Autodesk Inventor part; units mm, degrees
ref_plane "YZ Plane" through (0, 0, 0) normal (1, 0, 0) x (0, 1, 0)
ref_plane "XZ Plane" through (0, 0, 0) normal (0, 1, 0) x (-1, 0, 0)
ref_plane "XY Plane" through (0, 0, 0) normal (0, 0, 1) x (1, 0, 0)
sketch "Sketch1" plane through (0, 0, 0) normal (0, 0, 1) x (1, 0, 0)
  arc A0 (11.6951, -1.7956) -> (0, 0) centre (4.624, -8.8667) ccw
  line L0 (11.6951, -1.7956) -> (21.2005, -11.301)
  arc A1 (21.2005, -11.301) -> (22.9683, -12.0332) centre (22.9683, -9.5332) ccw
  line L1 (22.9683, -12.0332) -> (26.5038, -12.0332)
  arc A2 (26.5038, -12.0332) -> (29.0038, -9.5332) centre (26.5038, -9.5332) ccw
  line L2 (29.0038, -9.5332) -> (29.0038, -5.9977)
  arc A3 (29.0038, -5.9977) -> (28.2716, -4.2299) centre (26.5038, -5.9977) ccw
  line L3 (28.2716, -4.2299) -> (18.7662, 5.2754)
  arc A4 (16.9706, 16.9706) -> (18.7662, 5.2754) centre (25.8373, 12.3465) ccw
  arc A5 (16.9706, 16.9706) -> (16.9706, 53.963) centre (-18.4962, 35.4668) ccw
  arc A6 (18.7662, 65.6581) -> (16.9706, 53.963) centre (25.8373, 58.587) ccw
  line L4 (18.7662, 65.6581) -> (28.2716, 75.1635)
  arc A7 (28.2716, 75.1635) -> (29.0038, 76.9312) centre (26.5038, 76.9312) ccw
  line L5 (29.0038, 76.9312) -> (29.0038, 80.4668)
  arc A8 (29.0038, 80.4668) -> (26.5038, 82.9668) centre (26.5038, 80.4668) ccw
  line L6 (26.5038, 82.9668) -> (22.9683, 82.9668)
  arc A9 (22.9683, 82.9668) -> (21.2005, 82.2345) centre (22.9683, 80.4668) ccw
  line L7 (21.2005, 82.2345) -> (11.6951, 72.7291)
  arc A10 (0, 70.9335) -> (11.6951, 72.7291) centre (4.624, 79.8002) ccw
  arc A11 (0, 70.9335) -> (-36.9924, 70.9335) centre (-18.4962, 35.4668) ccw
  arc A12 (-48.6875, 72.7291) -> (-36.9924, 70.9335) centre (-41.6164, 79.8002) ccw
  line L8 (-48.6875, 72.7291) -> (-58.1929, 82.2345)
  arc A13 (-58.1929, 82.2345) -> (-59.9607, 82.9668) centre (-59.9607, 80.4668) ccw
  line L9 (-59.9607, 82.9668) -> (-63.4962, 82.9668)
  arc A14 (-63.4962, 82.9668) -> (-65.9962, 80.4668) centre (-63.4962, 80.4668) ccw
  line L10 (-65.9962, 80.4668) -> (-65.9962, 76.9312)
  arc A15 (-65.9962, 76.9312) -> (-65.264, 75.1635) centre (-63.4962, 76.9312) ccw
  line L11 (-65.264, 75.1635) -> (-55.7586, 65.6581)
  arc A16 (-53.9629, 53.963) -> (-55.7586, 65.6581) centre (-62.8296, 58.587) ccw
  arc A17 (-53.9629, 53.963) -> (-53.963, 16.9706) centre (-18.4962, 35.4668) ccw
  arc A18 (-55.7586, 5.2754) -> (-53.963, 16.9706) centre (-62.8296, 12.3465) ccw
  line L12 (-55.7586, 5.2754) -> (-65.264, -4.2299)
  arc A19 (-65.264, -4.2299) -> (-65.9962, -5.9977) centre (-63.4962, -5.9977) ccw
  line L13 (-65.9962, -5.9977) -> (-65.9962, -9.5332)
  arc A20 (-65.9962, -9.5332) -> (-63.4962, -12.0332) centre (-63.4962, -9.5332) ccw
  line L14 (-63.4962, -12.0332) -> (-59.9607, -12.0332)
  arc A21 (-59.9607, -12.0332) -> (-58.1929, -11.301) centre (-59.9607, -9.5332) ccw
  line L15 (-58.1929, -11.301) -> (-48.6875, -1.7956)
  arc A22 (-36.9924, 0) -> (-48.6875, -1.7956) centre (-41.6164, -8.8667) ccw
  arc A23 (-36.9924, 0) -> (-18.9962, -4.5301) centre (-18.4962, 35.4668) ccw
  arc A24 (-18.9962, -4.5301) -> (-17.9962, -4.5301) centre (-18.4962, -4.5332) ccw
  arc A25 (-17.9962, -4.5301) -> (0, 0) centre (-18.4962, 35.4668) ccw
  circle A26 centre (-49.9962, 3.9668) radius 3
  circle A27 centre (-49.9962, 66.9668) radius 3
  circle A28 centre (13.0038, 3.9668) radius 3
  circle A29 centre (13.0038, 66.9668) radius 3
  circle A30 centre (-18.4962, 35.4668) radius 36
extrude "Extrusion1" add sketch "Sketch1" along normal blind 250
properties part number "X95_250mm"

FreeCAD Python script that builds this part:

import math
import FreeCAD as App
import Part
import Sketcher

doc = App.newDocument("Part")
params = doc.addObject("Spreadsheet::Sheet", "Params")
for row, (alias, value) in enumerate([
    ("sketch1_diameter", "6 mm"),
    ("sketch1_diameter2", "72 mm"),
    ("sketch1_radius", "10 mm"),
    ("sketch1_radius2", "40 mm"),
    ("sketch1_radius3", "2.5 mm"),
    ("pad1_length", "250 mm"),
], start=1):
    params.set(f"A{row}", alias)
    params.set(f"B{row}", "=" + value)
    params.setAlias(f"B{row}", alias)

body = doc.addObject("PartDesign::Body", "Body")

# Sketch on XY plane
sketch1 = body.newObject("Sketcher::SketchObject", "Sketch")
sketch1.AttachmentSupport = (doc.getObject("XY_Plane"), [""])
sketch1.MapMode = "FlatFace"
sketch1.addGeometry([
    Part.ArcOfCircle(Part.Circle(App.Vector(4.6, -8.9, 0), App.Vector(0, 0, 1), 10), math.radians(45), math.radians(118)),  # 0
    Part.LineSegment(App.Vector(11.7, -1.8, 0), App.Vector(21.2, -11.3, 0)),  # 1
    Part.ArcOfCircle(Part.Circle(App.Vector(23, -9.5, 0), App.Vector(0, 0, 1), 2.5), math.radians(-135), math.radians(-90)),  # 2
    Part.LineSegment(App.Vector(23, -12, 0), App.Vector(26.5, -12, 0)),  # 3
    Part.ArcOfCircle(Part.Circle(App.Vector(26.5, -9.5, 0), App.Vector(0, 0, 1), 2.5), math.radians(-90), math.radians(0)),  # 4
    Part.LineSegment(App.Vector(29, -9.5, 0), App.Vector(29, -6, 0)),  # 5
    Part.ArcOfCircle(Part.Circle(App.Vector(26.5, -6, 0), App.Vector(0, 0, 1), 2.5), math.radians(0), math.radians(45)),  # 6
    Part.LineSegment(App.Vector(28.3, -4.2, 0), App.Vector(18.8, 5.3, 0)),  # 7
    Part.ArcOfCircle(Part.Circle(App.Vector(25.8, 12.3, 0), App.Vector(0, 0, 1), 10), math.radians(152), math.radians(225)),  # 8
    Part.ArcOfCircle(Part.Circle(App.Vector(-18.5, 35.5, 0), App.Vector(0, 0, 1), 40), math.radians(-28), math.radians(28)),  # 9
    Part.ArcOfCircle(Part.Circle(App.Vector(25.8, 58.6, 0), App.Vector(0, 0, 1), 10), math.radians(135), math.radians(208)),  # 10
    Part.LineSegment(App.Vector(18.8, 65.7, 0), App.Vector(28.3, 75.2, 0)),  # 11
    Part.ArcOfCircle(Part.Circle(App.Vector(26.5, 76.9, 0), App.Vector(0, 0, 1), 2.5), math.radians(-45), math.radians(0)),  # 12
    Part.LineSegment(App.Vector(29, 76.9, 0), App.Vector(29, 80.5, 0)),  # 13
    Part.ArcOfCircle(Part.Circle(App.Vector(26.5, 80.5, 0), App.Vector(0, 0, 1), 2.5), math.radians(0), math.radians(90)),  # 14
    Part.LineSegment(App.Vector(26.5, 83, 0), App.Vector(23, 83, 0)),  # 15
    Part.ArcOfCircle(Part.Circle(App.Vector(23, 80.5, 0), App.Vector(0, 0, 1), 2.5), math.radians(90), math.radians(135)),  # 16
    Part.LineSegment(App.Vector(21.2, 82.2, 0), App.Vector(11.7, 72.7, 0)),  # 17
    Part.ArcOfCircle(Part.Circle(App.Vector(4.6, 79.8, 0), App.Vector(0, 0, 1), 10), math.radians(-118), math.radians(-45)),  # 18
    Part.ArcOfCircle(Part.Circle(App.Vector(-18.5, 35.5, 0), App.Vector(0, 0, 1), 40), math.radians(62), math.radians(118)),  # 19
    Part.ArcOfCircle(Part.Circle(App.Vector(-41.6, 79.8, 0), App.Vector(0, 0, 1), 10), math.radians(-135), math.radians(-62)),  # 20
    Part.LineSegment(App.Vector(-48.7, 72.7, 0), App.Vector(-58.2, 82.2, 0)),  # 21
    Part.ArcOfCircle(Part.Circle(App.Vector(-60, 80.5, 0), App.Vector(0, 0, 1), 2.5), math.radians(45), math.radians(90)),  # 22
    Part.LineSegment(App.Vector(-60, 83, 0), App.Vector(-63.5, 83, 0)),  # 23
    Part.ArcOfCircle(Part.Circle(App.Vector(-63.5, 80.5, 0), App.Vector(0, 0, 1), 2.5), math.radians(90), math.radians(180)),  # 24
    Part.LineSegment(App.Vector(-66, 80.5, 0), App.Vector(-66, 76.9, 0)),  # 25
    Part.ArcOfCircle(Part.Circle(App.Vector(-63.5, 76.9, 0), App.Vector(0, 0, 1), 2.5), math.radians(180), math.radians(225)),  # 26
    Part.LineSegment(App.Vector(-65.3, 75.2, 0), App.Vector(-55.8, 65.7, 0)),  # 27
    Part.ArcOfCircle(Part.Circle(App.Vector(-62.8, 58.6, 0), App.Vector(0, 0, 1), 10), math.radians(-28), math.radians(45)),  # 28
    Part.ArcOfCircle(Part.Circle(App.Vector(-18.5, 35.5, 0), App.Vector(0, 0, 1), 40), math.radians(152), math.radians(208)),  # 29
    Part.ArcOfCircle(Part.Circle(App.Vector(-62.8, 12.3, 0), App.Vector(0, 0, 1), 10), math.radians(-45), math.radians(28)),  # 30
    Part.LineSegment(App.Vector(-55.8, 5.3, 0), App.Vector(-65.3, -4.2, 0)),  # 31
    Part.ArcOfCircle(Part.Circle(App.Vector(-63.5, -6, 0), App.Vector(0, 0, 1), 2.5), math.radians(135), math.radians(180)),  # 32
    Part.LineSegment(App.Vector(-66, -6, 0), App.Vector(-66, -9.5, 0)),  # 33
    Part.ArcOfCircle(Part.Circle(App.Vector(-63.5, -9.5, 0), App.Vector(0, 0, 1), 2.5), math.radians(180), math.radians(270)),  # 34
    Part.LineSegment(App.Vector(-63.5, -12, 0), App.Vector(-60, -12, 0)),  # 35
    Part.ArcOfCircle(Part.Circle(App.Vector(-60, -9.5, 0), App.Vector(0, 0, 1), 2.5), math.radians(-90), math.radians(-45)),  # 36
    Part.LineSegment(App.Vector(-58.2, -11.3, 0), App.Vector(-48.7, -1.8, 0)),  # 37
    Part.ArcOfCircle(Part.Circle(App.Vector(-41.6, -8.9, 0), App.Vector(0, 0, 1), 10), math.radians(62), math.radians(135)),  # 38
    Part.ArcOfCircle(Part.Circle(App.Vector(-18.5, 35.5, 0), App.Vector(0, 0, 1), 40), math.radians(-118), math.radians(-91)),  # 39
    Part.ArcOfCircle(Part.Circle(App.Vector(-18.5, -4.5, 0), App.Vector(0, 0, 1), 0.5), math.radians(180), math.radians(360)),  # 40
    Part.ArcOfCircle(Part.Circle(App.Vector(-18.5, 35.5, 0), App.Vector(0, 0, 1), 40), math.radians(-89), math.radians(-62)),  # 41
    Part.Circle(App.Vector(-50, 4, 0), App.Vector(0, 0, 1), 3),  # 42
    Part.Circle(App.Vector(13, 4, 0), App.Vector(0, 0, 1), 3),  # 43
    Part.Circle(App.Vector(-50, 67, 0), App.Vector(0, 0, 1), 3),  # 44
    Part.Circle(App.Vector(-18.5, 35.5, 0), App.Vector(0, 0, 1), 36),  # 45
    Part.Circle(App.Vector(13, 67, 0), App.Vector(0, 0, 1), 3),  # 46
], False)
sketch1.addConstraint([
    Sketcher.Constraint("Tangent", 0, 1, 1, 1),
    Sketcher.Constraint("Tangent", 1, 2, 2, 1),
    Sketcher.Constraint("Tangent", 2, 2, 3, 1),
    Sketcher.Constraint("Tangent", 3, 2, 4, 1),
    Sketcher.Constraint("Tangent", 4, 2, 5, 1),
    Sketcher.Constraint("Tangent", 5, 2, 6, 1),
    Sketcher.Constraint("Tangent", 6, 2, 7, 1),
    Sketcher.Constraint("Tangent", 7, 2, 8, 2),
    Sketcher.Constraint("Tangent", 8, 1, 9, 1),
    Sketcher.Constraint("Tangent", 9, 2, 10, 2),
    Sketcher.Constraint("Tangent", 10, 1, 11, 1),
    Sketcher.Constraint("Tangent", 11, 2, 12, 1),
    Sketcher.Constraint("Tangent", 12, 2, 13, 1),
    Sketcher.Constraint("Tangent", 13, 2, 14, 1),
    Sketcher.Constraint("Tangent", 14, 2, 15, 1),
    Sketcher.Constraint("Tangent", 15, 2, 16, 1),
    Sketcher.Constraint("Tangent", 16, 2, 17, 1),
    Sketcher.Constraint("Tangent", 17, 2, 18, 2),
    Sketcher.Constraint("Tangent", 18, 1, 19, 1),
    Sketcher.Constraint("Tangent", 19, 2, 20, 2),
    Sketcher.Constraint("Tangent", 20, 1, 21, 1),
    Sketcher.Constraint("Tangent", 21, 2, 22, 1),
    Sketcher.Constraint("Tangent", 22, 2, 23, 1),
    Sketcher.Constraint("Tangent", 23, 2, 24, 1),
    Sketcher.Constraint("Tangent", 24, 2, 25, 1),
    Sketcher.Constraint("Tangent", 25, 2, 26, 1),
    Sketcher.Constraint("Tangent", 26, 2, 27, 1),
    Sketcher.Constraint("Tangent", 27, 2, 28, 2),
    Sketcher.Constraint("Tangent", 28, 1, 29, 1),
    Sketcher.Constraint("Tangent", 29, 2, 30, 2),
    Sketcher.Constraint("Tangent", 30, 1, 31, 1),
    Sketcher.Constraint("Tangent", 31, 2, 32, 1),
    Sketcher.Constraint("Tangent", 32, 2, 33, 1),
    Sketcher.Constraint("Tangent", 33, 2, 34, 1),
    Sketcher.Constraint("Tangent", 34, 2, 35, 1),
    Sketcher.Constraint("Tangent", 35, 2, 36, 1),
    Sketcher.Constraint("Tangent", 36, 2, 37, 1),
    Sketcher.Constraint("Tangent", 37, 2, 38, 2),
    Sketcher.Constraint("Tangent", 38, 1, 39, 1),
    Sketcher.Constraint("Coincident", 39, 2, 40, 1),
    Sketcher.Constraint("Coincident", 40, 2, 41, 1),
    Sketcher.Constraint("Tangent", 41, 2, 0, 2),
    Sketcher.Constraint("Horizontal", 3),
    Sketcher.Constraint("Vertical", 5),
    Sketcher.Constraint("Vertical", 13),
    Sketcher.Constraint("Horizontal", 15),
    Sketcher.Constraint("Horizontal", 23),
    Sketcher.Constraint("Vertical", 25),
    Sketcher.Constraint("Vertical", 33),
    Sketcher.Constraint("Horizontal", 35),
    Sketcher.Constraint("Coincident", 41, 2, -1, 1),
    Sketcher.Constraint("Coincident", 19, 3, 9, 3),
    Sketcher.Constraint("Coincident", 29, 3, 9, 3),
    Sketcher.Constraint("Coincident", 39, 3, 9, 3),
    Sketcher.Constraint("Coincident", 41, 3, 9, 3),
    Sketcher.Constraint("Coincident", 45, 3, 9, 3),
    Sketcher.Constraint("Equal", 2, 4),
    Sketcher.Constraint("Equal", 4, 6),
    Sketcher.Constraint("Equal", 0, 8),
    Sketcher.Constraint("Equal", 8, 10),
    Sketcher.Constraint("Equal", 6, 12),
    Sketcher.Constraint("Equal", 12, 14),
    Sketcher.Constraint("Equal", 14, 16),
    Sketcher.Constraint("Equal", 10, 18),
    Sketcher.Constraint("Equal", 9, 19),
    Sketcher.Constraint("Equal", 18, 20),
    Sketcher.Constraint("Equal", 16, 22),
    Sketcher.Constraint("Equal", 22, 24),
    Sketcher.Constraint("Equal", 24, 26),
    Sketcher.Constraint("Equal", 20, 28),
    Sketcher.Constraint("Equal", 19, 29),
    Sketcher.Constraint("Equal", 28, 30),
    Sketcher.Constraint("Equal", 26, 32),
    Sketcher.Constraint("Equal", 32, 34),
    Sketcher.Constraint("Equal", 34, 36),
    Sketcher.Constraint("Equal", 30, 38),
    Sketcher.Constraint("Equal", 29, 39),
    Sketcher.Constraint("Equal", 39, 41),
    Sketcher.Constraint("Equal", 42, 43),
    Sketcher.Constraint("Equal", 43, 44),
    Sketcher.Constraint("Equal", 44, 46),
    Sketcher.Constraint("PointOnObject", 18, 1, -2),
    Sketcher.Constraint("PointOnObject", 38, 1, -1),
    Sketcher.Constraint("Parallel", 1, 7),
    Sketcher.Constraint("Perpendicular", 7, 11),
    Sketcher.Constraint("Parallel", 11, 17),
    Sketcher.Constraint("Perpendicular", 17, 21),
    Sketcher.Constraint("Parallel", 21, 27),
    Sketcher.Constraint("Perpendicular", 27, 31),
    Sketcher.Constraint("Parallel", 31, 37),
    Sketcher.Constraint("Horizontal", 18, 3, 20, 3),
    Sketcher.Constraint("Horizontal", 16, 3, 22, 3),
    Sketcher.Constraint("Horizontal", 12, 3, 26, 3),
    Sketcher.Constraint("Horizontal", 10, 3, 28, 3),
    Sketcher.Constraint("Horizontal", 8, 3, 30, 3),
    Sketcher.Constraint("Horizontal", 6, 3, 32, 3),
    Sketcher.Constraint("Horizontal", 4, 3, 34, 3),
    Sketcher.Constraint("Horizontal", 42, 3, 43, 3),
    Sketcher.Constraint("Horizontal", 44, 3, 46, 3),
    Sketcher.Constraint("Horizontal", 17, 2, 20, 1),
    Sketcher.Constraint("Horizontal", 39, 2, 40, 2),
    Sketcher.Constraint("Vertical", 8, 3, 10, 3),
    Sketcher.Constraint("Vertical", 6, 3, 12, 3),
    Sketcher.Constraint("Vertical", 2, 3, 16, 3),
    Sketcher.Constraint("Vertical", 42, 3, 44, 3),
    Sketcher.Constraint("Vertical", 43, 3, 46, 3),
    Sketcher.Constraint("Equal", 35, 5),
    Sketcher.Constraint("Equal", 1, 7),
    Sketcher.Constraint("Diameter", 42, 6.0),
    Sketcher.Constraint("Diameter", 45, 72.0),
    Sketcher.Constraint("Radius", 0, 10.0),
    Sketcher.Constraint("Radius", 9, 40.0),
    Sketcher.Constraint("Radius", 2, 2.5),
    Sketcher.Constraint("Radius", 40, 0.5),
    Sketcher.Constraint("DistanceY", 6, 2, -1, 1, 4.23),
    Sketcher.Constraint("DistanceY", 39, 2, -1, 1, 4.53),
    Sketcher.Constraint("DistanceY", 40, 3, -1, 1, 4.5332),
    Sketcher.Constraint("DistanceX", 42, 3, -1, 1, 49.9962),
    Sketcher.Constraint("DistanceY", -1, 1, 42, 3, 3.9668),
    Sketcher.Constraint("DistanceX", -1, 1, 43, 3, 13.0038),
    Sketcher.Constraint("DistanceY", -1, 1, 44, 3, 66.9668),
])
sketch1.setExpression("Constraints[108]", "Params.sketch1_diameter")
sketch1.setExpression("Constraints[109]", "Params.sketch1_diameter2")
sketch1.setExpression("Constraints[110]", "Params.sketch1_radius")
sketch1.setExpression("Constraints[111]", "Params.sketch1_radius2")
sketch1.setExpression("Constraints[112]", "Params.sketch1_radius3")
pad1 = body.newObject("PartDesign::Pad", "Pad")
pad1.Profile = sketch1
pad1.setExpression("Length", "Params.pad1_length")

doc.recompute()
